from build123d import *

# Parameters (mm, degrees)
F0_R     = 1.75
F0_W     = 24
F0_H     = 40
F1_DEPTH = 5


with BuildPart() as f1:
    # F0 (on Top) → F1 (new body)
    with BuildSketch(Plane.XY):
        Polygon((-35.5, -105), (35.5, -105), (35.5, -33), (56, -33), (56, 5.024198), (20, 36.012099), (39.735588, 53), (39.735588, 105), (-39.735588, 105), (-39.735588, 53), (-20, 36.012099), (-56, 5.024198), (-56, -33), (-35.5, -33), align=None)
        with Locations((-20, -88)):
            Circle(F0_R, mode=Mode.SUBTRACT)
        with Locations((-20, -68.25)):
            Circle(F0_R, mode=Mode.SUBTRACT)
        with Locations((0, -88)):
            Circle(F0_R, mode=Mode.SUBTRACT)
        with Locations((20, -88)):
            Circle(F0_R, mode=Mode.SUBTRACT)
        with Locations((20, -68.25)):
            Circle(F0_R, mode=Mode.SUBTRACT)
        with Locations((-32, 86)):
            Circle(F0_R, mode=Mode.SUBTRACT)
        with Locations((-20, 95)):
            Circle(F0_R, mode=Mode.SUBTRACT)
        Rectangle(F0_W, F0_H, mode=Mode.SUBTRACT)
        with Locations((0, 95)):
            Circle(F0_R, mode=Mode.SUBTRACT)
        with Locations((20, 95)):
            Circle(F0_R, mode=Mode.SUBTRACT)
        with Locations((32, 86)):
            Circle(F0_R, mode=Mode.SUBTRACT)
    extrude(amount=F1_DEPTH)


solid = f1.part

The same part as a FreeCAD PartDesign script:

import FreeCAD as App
import Part
import Sketcher
from FreeCAD import Vector

doc = App.newDocument("Part")
body = doc.addObject("PartDesign::Body", "Body")

# Sketch on XY plane
sketch1 = body.newObject("Sketcher::SketchObject", "Sketch")
sketch1.AttachmentSupport = (doc.getObject("XY_Plane"), [""])
sketch1.MapMode = "FlatFace"
sketch1.addGeometry([
    Part.LineSegment(Vector(-35.5, -105, 0), Vector(35.5, -105, 0)),  # 0
    Part.LineSegment(Vector(35.5, -105, 0), Vector(35.5, -33, 0)),  # 1
    Part.LineSegment(Vector(35.5, -33, 0), Vector(56, -33, 0)),  # 2
    Part.LineSegment(Vector(56, -33, 0), Vector(56, 5, 0)),  # 3
    Part.LineSegment(Vector(56, 5, 0), Vector(20, 36, 0)),  # 4
    Part.LineSegment(Vector(20, 36, 0), Vector(39.7, 53, 0)),  # 5
    Part.LineSegment(Vector(39.7, 53, 0), Vector(39.7, 105, 0)),  # 6
    Part.LineSegment(Vector(39.7, 105, 0), Vector(-39.7, 105, 0)),  # 7
    Part.LineSegment(Vector(-39.7, 105, 0), Vector(-39.7, 53, 0)),  # 8
    Part.LineSegment(Vector(-39.7, 53, 0), Vector(-20, 36, 0)),  # 9
    Part.LineSegment(Vector(-20, 36, 0), Vector(-56, 5, 0)),  # 10
    Part.LineSegment(Vector(-56, 5, 0), Vector(-56, -33, 0)),  # 11
    Part.LineSegment(Vector(-56, -33, 0), Vector(-35.5, -33, 0)),  # 12
    Part.LineSegment(Vector(-35.5, -33, 0), Vector(-35.5, -105, 0)),  # 13
    Part.Circle(Vector(-20, -88, 0), Vector(0, 0, 1), 1.8),  # 14
    Part.Circle(Vector(-20, -68.2, 0), Vector(0, 0, 1), 1.8),  # 15
    Part.Circle(Vector(0, -88, 0), Vector(0, 0, 1), 1.8),  # 16
    Part.Circle(Vector(20, -88, 0), Vector(0, 0, 1), 1.8),  # 17
    Part.Circle(Vector(20, -68.2, 0), Vector(0, 0, 1), 1.8),  # 18
    Part.LineSegment(Vector(12, -20, 0), Vector(-12, -20, 0)),  # 19
    Part.LineSegment(Vector(-12, -20, 0), Vector(-12, 20, 0)),  # 20
    Part.LineSegment(Vector(-12, 20, 0), Vector(12, 20, 0)),  # 21
    Part.LineSegment(Vector(12, 20, 0), Vector(12, -20, 0)),  # 22
    Part.Circle(Vector(-32, 86, 0), Vector(0, 0, 1), 1.8),  # 23
    Part.Circle(Vector(-20, 95, 0), Vector(0, 0, 1), 1.8),  # 24
    Part.Circle(Vector(0, 95, 0), Vector(0, 0, 1), 1.8),  # 25
    Part.Circle(Vector(20, 95, 0), Vector(0, 0, 1), 1.8),  # 26
    Part.Circle(Vector(32, 86, 0), Vector(0, 0, 1), 1.8),  # 27
], False)
sketch1.addConstraint([
    Sketcher.Constraint("Coincident", 0, 2, 1, 1),
    Sketcher.Constraint("Coincident", 1, 2, 2, 1),
    Sketcher.Constraint("Coincident", 2, 2, 3, 1),
    Sketcher.Constraint("Coincident", 3, 2, 4, 1),
    Sketcher.Constraint("Coincident", 4, 2, 5, 1),
    Sketcher.Constraint("Coincident", 5, 2, 6, 1),
    Sketcher.Constraint("Coincident", 6, 2, 7, 1),
    Sketcher.Constraint("Coincident", 7, 2, 8, 1),
    Sketcher.Constraint("Coincident", 8, 2, 9, 1),
    Sketcher.Constraint("Coincident", 9, 2, 10, 1),
    Sketcher.Constraint("Coincident", 10, 2, 11, 1),
    Sketcher.Constraint("Coincident", 11, 2, 12, 1),
    Sketcher.Constraint("Coincident", 12, 2, 13, 1),
    Sketcher.Constraint("Coincident", 13, 2, 0, 1),
    Sketcher.Constraint("Coincident", 19, 2, 20, 1),
    Sketcher.Constraint("Coincident", 20, 2, 21, 1),
    Sketcher.Constraint("Coincident", 21, 2, 22, 1),
    Sketcher.Constraint("Coincident", 22, 2, 19, 1),
    Sketcher.Constraint("Horizontal", 0),
    Sketcher.Constraint("Vertical", 1),
    Sketcher.Constraint("Horizontal", 2),
    Sketcher.Constraint("Vertical", 3),
    Sketcher.Constraint("Vertical", 6),
    Sketcher.Constraint("Horizontal", 7),
    Sketcher.Constraint("Vertical", 8),
    Sketcher.Constraint("Vertical", 11),
    Sketcher.Constraint("Horizontal", 12),
    Sketcher.Constraint("Vertical", 13),
    Sketcher.Constraint("Horizontal", 19),
    Sketcher.Constraint("Vertical", 20),
    Sketcher.Constraint("Horizontal", 21),
    Sketcher.Constraint("Vertical", 22),
    Sketcher.Constraint("Equal", 14, 15),
    Sketcher.Constraint("Equal", 15, 16),
    Sketcher.Constraint("Equal", 16, 17),
    Sketcher.Constraint("Equal", 17, 18),
    Sketcher.Constraint("Equal", 18, 23),
    Sketcher.Constraint("Equal", 23, 24),
    Sketcher.Constraint("Equal", 24, 25),
    Sketcher.Constraint("Equal", 25, 26),
    Sketcher.Constraint("Equal", 26, 27),
    Sketcher.Constraint("Symmetric", 19, 2, 21, 2, -1, 1),
    Sketcher.Constraint("Symmetric", 14, 3, 17, 3, -2),
    Sketcher.Constraint("Symmetric", 15, 3, 18, 3, -2),
    Sketcher.Constraint("Symmetric", 24, 3, 26, 3, -2),
    Sketcher.Constraint("Symmetric", 23, 3, 27, 3, -2),
    Sketcher.Constraint("Symmetric", 5, 2, 8, 2, -2),
    Sketcher.Constraint("Symmetric", 4, 2, 9, 2, -2),
    Sketcher.Constraint("Symmetric", 3, 2, 10, 2, -2),
    Sketcher.Constraint("Symmetric", 1, 2, 12, 2, -2),
    Sketcher.Constraint("PointOnObject", 16, 3, -2),
    Sketcher.Constraint("PointOnObject", 25, 3, -2),
    Sketcher.Constraint("Parallel", 4, 9),
    Sketcher.Constraint("Horizontal", 14, 3, 16, 3),
    Sketcher.Constraint("Horizontal", 24, 3, 25, 3),
    Sketcher.Constraint("Vertical", 14, 3, 15, 3),
    Sketcher.Constraint("Vertical", 15, 3, 24, 3),
    Sketcher.Constraint("Vertical", 26, 3, 4, 2),
    Sketcher.Constraint("Diameter", 14, 3.5),
    Sketcher.Constraint("DistanceX", 0, 1, 0, 2, 71.0),
    Sketcher.Constraint("DistanceX", 19, 2, 19, 1, 24.0),
    Sketcher.Constraint("DistanceY", 1, 1, 1, 2, 72.0),
    Sketcher.Constraint("DistanceY", 6, 1, 6, 2, 52.0),
    Sketcher.Constraint("DistanceY", 20, 1, 20, 2, 40.0),
    Sketcher.Constraint("DistanceX", 2, 1, 2, 2, 20.5),
    Sketcher.Constraint("DistanceX", 14, 3, -1, 1, 20.0),
    Sketcher.Constraint("DistanceY", 14, 3, -1, 1, 88.0),
    Sketcher.Constraint("DistanceX", 23, 3, -1, 1, 32.0),
    Sketcher.Constraint("DistanceY", -1, 1, 23, 3, 86.0),
    Sketcher.Constraint("DistanceY", -1, 1, 24, 3, 95.0),
    Sketcher.Constraint("DistanceY", 0, 2, -1, 1, 105.0),
    Sketcher.Constraint("DistanceY", -1, 1, 5, 2, 53.0),
    Sketcher.Constraint("Distance", 4, 47.5),
    Sketcher.Constraint("DistanceY", 15, 3, -1, 1, 68.25),
    Sketcher.Constraint("DistanceY", -1, 1, 4, 2, 36.012099),
])
pad1 = body.newObject("PartDesign::Pad", "Pad")
pad1.Profile = sketch1
pad1.Length = 5

doc.recompute()
